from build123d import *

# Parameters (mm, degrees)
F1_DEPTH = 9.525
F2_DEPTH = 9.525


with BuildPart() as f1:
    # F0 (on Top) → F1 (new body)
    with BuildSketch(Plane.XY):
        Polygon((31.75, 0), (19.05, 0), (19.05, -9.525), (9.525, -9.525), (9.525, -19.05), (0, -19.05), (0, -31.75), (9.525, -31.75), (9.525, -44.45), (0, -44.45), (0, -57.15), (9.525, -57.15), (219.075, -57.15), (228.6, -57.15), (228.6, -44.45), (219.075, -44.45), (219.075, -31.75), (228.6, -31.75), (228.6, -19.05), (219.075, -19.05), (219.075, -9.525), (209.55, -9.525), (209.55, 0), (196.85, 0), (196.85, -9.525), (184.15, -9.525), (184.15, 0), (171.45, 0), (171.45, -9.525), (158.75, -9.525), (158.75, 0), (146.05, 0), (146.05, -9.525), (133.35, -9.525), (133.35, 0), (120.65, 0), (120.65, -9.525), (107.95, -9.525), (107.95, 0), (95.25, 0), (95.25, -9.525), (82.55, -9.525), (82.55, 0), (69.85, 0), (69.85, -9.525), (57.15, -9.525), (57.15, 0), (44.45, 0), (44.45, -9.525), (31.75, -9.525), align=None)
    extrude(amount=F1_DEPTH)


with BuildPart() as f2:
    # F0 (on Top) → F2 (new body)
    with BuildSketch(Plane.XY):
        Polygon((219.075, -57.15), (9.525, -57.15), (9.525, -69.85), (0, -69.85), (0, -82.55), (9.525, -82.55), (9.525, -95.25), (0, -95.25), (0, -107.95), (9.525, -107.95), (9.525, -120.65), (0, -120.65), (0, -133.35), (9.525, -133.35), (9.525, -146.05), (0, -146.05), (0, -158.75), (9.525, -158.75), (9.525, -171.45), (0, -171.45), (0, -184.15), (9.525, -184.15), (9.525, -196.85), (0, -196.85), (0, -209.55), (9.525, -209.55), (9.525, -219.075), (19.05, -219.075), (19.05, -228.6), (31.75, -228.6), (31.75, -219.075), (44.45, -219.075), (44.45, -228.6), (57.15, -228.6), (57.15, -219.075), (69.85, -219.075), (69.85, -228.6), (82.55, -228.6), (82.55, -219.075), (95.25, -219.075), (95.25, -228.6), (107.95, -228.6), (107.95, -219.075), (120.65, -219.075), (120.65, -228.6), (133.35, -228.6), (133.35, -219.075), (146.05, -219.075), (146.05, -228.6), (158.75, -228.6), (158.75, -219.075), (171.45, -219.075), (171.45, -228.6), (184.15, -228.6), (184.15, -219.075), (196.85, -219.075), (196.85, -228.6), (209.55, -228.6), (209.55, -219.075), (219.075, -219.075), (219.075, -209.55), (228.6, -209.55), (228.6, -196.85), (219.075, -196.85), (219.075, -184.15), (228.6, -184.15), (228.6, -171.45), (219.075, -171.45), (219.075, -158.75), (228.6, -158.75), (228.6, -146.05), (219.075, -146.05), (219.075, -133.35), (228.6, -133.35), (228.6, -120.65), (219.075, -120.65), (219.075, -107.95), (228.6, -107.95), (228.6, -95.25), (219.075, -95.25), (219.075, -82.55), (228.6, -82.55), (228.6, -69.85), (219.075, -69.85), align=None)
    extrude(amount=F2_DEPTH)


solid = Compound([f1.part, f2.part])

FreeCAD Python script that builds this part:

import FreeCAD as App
import Part
import Sketcher
from FreeCAD import Vector
Q = App.Units.Quantity

doc = App.newDocument("Part")
body = doc.addObject("PartDesign::Body", "Body")

# Sketch on XY plane
sketch1 = doc.addObject("Sketcher::SketchObject", "Sketch")
body.addObject(sketch1)
sketch1.AttachmentSupport = (doc.XY_Plane, [""])
sketch1.MapMode = "FlatFace"
sketch1.addGeometry([
    Part.LineSegment(Vector(32, 0, 0), Vector(19, 0, 0)),  # 0
    Part.LineSegment(Vector(19, 0, 0), Vector(19, -10, 0)),  # 1
    Part.LineSegment(Vector(19, -10, 0), Vector(10, -10, 0)),  # 2
    Part.LineSegment(Vector(10, -10, 0), Vector(10, -19, 0)),  # 3
    Part.LineSegment(Vector(10, -19, 0), Vector(0, -19, 0)),  # 4
    Part.LineSegment(Vector(0, -19, 0), Vector(0, -32, 0)),  # 5
    Part.LineSegment(Vector(0, -32, 0), Vector(10, -32, 0)),  # 6
    Part.LineSegment(Vector(10, -32, 0), Vector(10, -44, 0)),  # 7
    Part.LineSegment(Vector(10, -44, 0), Vector(0, -44, 0)),  # 8
    Part.LineSegment(Vector(0, -44, 0), Vector(0, -57, 0)),  # 9
    Part.LineSegment(Vector(0, -57, 0), Vector(229, -57, 0)),  # 10
    Part.LineSegment(Vector(229, -57, 0), Vector(229, -44, 0)),  # 11
    Part.LineSegment(Vector(229, -44, 0), Vector(219, -44, 0)),  # 12
    Part.LineSegment(Vector(219, -44, 0), Vector(219, -32, 0)),  # 13
    Part.LineSegment(Vector(219, -32, 0), Vector(229, -32, 0)),  # 14
    Part.LineSegment(Vector(229, -32, 0), Vector(229, -19, 0)),  # 15
    Part.LineSegment(Vector(229, -19, 0), Vector(219, -19, 0)),  # 16
    Part.LineSegment(Vector(219, -19, 0), Vector(219, -10, 0)),  # 17
    Part.LineSegment(Vector(219, -10, 0), Vector(210, -10, 0)),  # 18
    Part.LineSegment(Vector(210, -10, 0), Vector(210, 0, 0)),  # 19
    Part.LineSegment(Vector(210, 0, 0), Vector(197, 0, 0)),  # 20
    Part.LineSegment(Vector(197, 0, 0), Vector(197, -10, 0)),  # 21
    Part.LineSegment(Vector(197, -10, 0), Vector(184, -10, 0)),  # 22
    Part.LineSegment(Vector(184, -10, 0), Vector(184, 0, 0)),  # 23
    Part.LineSegment(Vector(184, 0, 0), Vector(171, 0, 0)),  # 24
    Part.LineSegment(Vector(171, 0, 0), Vector(171, -10, 0)),  # 25
    Part.LineSegment(Vector(171, -10, 0), Vector(159, -10, 0)),  # 26
    Part.LineSegment(Vector(159, -10, 0), Vector(159, 0, 0)),  # 27
    Part.LineSegment(Vector(159, 0, 0), Vector(146, 0, 0)),  # 28
    Part.LineSegment(Vector(146, 0, 0), Vector(146, -10, 0)),  # 29
    Part.LineSegment(Vector(146, -10, 0), Vector(133, -10, 0)),  # 30
    Part.LineSegment(Vector(133, -10, 0), Vector(133, 0, 0)),  # 31
    Part.LineSegment(Vector(133, 0, 0), Vector(121, 0, 0)),  # 32
    Part.LineSegment(Vector(121, 0, 0), Vector(121, -10, 0)),  # 33
    Part.LineSegment(Vector(121, -10, 0), Vector(108, -10, 0)),  # 34
    Part.LineSegment(Vector(108, -10, 0), Vector(108, 0, 0)),  # 35
    Part.LineSegment(Vector(108, 0, 0), Vector(95, 0, 0)),  # 36
    Part.LineSegment(Vector(95, 0, 0), Vector(95, -10, 0)),  # 37
    Part.LineSegment(Vector(95, -10, 0), Vector(83, -10, 0)),  # 38
    Part.LineSegment(Vector(83, -10, 0), Vector(83, 0, 0)),  # 39
    Part.LineSegment(Vector(83, 0, 0), Vector(70, 0, 0)),  # 40
    Part.LineSegment(Vector(70, 0, 0), Vector(70, -10, 0)),  # 41
    Part.LineSegment(Vector(70, -10, 0), Vector(57, -10, 0)),  # 42
    Part.LineSegment(Vector(57, -10, 0), Vector(57, 0, 0)),  # 43
    Part.LineSegment(Vector(57, 0, 0), Vector(44, 0, 0)),  # 44
    Part.LineSegment(Vector(44, 0, 0), Vector(44, -10, 0)),  # 45
    Part.LineSegment(Vector(44, -10, 0), Vector(32, -10, 0)),  # 46
    Part.LineSegment(Vector(32, -10, 0), Vector(32, 0, 0)),  # 47
], False)
sketch1.addConstraint([
    Sketcher.Constraint("Coincident", 0, 2, 1, 1),
    Sketcher.Constraint("Coincident", 1, 2, 2, 1),
    Sketcher.Constraint("Coincident", 2, 2, 3, 1),
    Sketcher.Constraint("Coincident", 3, 2, 4, 1),
    Sketcher.Constraint("Coincident", 4, 2, 5, 1),
    Sketcher.Constraint("Coincident", 5, 2, 6, 1),
    Sketcher.Constraint("Coincident", 6, 2, 7, 1),
    Sketcher.Constraint("Coincident", 7, 2, 8, 1),
    Sketcher.Constraint("Coincident", 8, 2, 9, 1),
    Sketcher.Constraint("Coincident", 9, 2, 10, 1),
    Sketcher.Constraint("Coincident", 10, 2, 11, 1),
    Sketcher.Constraint("Coincident", 11, 2, 12, 1),
    Sketcher.Constraint("Coincident", 12, 2, 13, 1),
    Sketcher.Constraint("Coincident", 13, 2, 14, 1),
    Sketcher.Constraint("Coincident", 14, 2, 15, 1),
    Sketcher.Constraint("Coincident", 15, 2, 16, 1),
    Sketcher.Constraint("Coincident", 16, 2, 17, 1),
    Sketcher.Constraint("Coincident", 17, 2, 18, 1),
    Sketcher.Constraint("Coincident", 18, 2, 19, 1),
    Sketcher.Constraint("Coincident", 19, 2, 20, 1),
    Sketcher.Constraint("Coincident", 20, 2, 21, 1),
    Sketcher.Constraint("Coincident", 21, 2, 22, 1),
    Sketcher.Constraint("Coincident", 22, 2, 23, 1),
    Sketcher.Constraint("Coincident", 23, 2, 24, 1),
    Sketcher.Constraint("Coincident", 24, 2, 25, 1),
    Sketcher.Constraint("Coincident", 25, 2, 26, 1),
    Sketcher.Constraint("Coincident", 26, 2, 27, 1),
    Sketcher.Constraint("Coincident", 27, 2, 28, 1),
    Sketcher.Constraint("Coincident", 28, 2, 29, 1),
    Sketcher.Constraint("Coincident", 29, 2, 30, 1),
    Sketcher.Constraint("Coincident", 30, 2, 31, 1),
    Sketcher.Constraint("Coincident", 31, 2, 32, 1),
    Sketcher.Constraint("Coincident", 32, 2, 33, 1),
    Sketcher.Constraint("Coincident", 33, 2, 34, 1),
    Sketcher.Constraint("Coincident", 34, 2, 35, 1),
    Sketcher.Constraint("Coincident", 35, 2, 36, 1),
    Sketcher.Constraint("Coincident", 36, 2, 37, 1),
    Sketcher.Constraint("Coincident", 37, 2, 38, 1),
    Sketcher.Constraint("Coincident", 38, 2, 39, 1),
    Sketcher.Constraint("Coincident", 39, 2, 40, 1),
    Sketcher.Constraint("Coincident", 40, 2, 41, 1),
    Sketcher.Constraint("Coincident", 41, 2, 42, 1),
    Sketcher.Constraint("Coincident", 42, 2, 43, 1),
    Sketcher.Constraint("Coincident", 43, 2, 44, 1),
    Sketcher.Constraint("Coincident", 44, 2, 45, 1),
    Sketcher.Constraint("Coincident", 45, 2, 46, 1),
    Sketcher.Constraint("Coincident", 46, 2, 47, 1),
    Sketcher.Constraint("Coincident", 47, 2, 0, 1),
    Sketcher.Constraint("Horizontal", 0),
    Sketcher.Constraint("Vertical", 1),
    Sketcher.Constraint("Horizontal", 2),
    Sketcher.Constraint("Vertical", 3),
    Sketcher.Constraint("Horizontal", 4),
    Sketcher.Constraint("Vertical", 5),
    Sketcher.Constraint("Horizontal", 6),
    Sketcher.Constraint("Vertical", 7),
    Sketcher.Constraint("Horizontal", 8),
    Sketcher.Constraint("Vertical", 9),
    Sketcher.Constraint("Horizontal", 10),
    Sketcher.Constraint("Vertical", 11),
    Sketcher.Constraint("Horizontal", 12),
    Sketcher.Constraint("Vertical", 13),
    Sketcher.Constraint("Horizontal", 14),
    Sketcher.Constraint("Vertical", 15),
    Sketcher.Constraint("Horizontal", 16),
    Sketcher.Constraint("Vertical", 17),
    Sketcher.Constraint("Horizontal", 18),
    Sketcher.Constraint("Vertical", 19),
    Sketcher.Constraint("Horizontal", 20),
    Sketcher.Constraint("Vertical", 21),
    Sketcher.Constraint("Horizontal", 22),
    Sketcher.Constraint("Vertical", 23),
    Sketcher.Constraint("Horizontal", 24),
    Sketcher.Constraint("Vertical", 25),
    Sketcher.Constraint("Horizontal", 26),
    Sketcher.Constraint("Vertical", 27),
    Sketcher.Constraint("Horizontal", 28),
    Sketcher.Constraint("Vertical", 29),
    Sketcher.Constraint("Horizontal", 30),
    Sketcher.Constraint("Vertical", 31),
    Sketcher.Constraint("Horizontal", 32),
    Sketcher.Constraint("Vertical", 33),
    Sketcher.Constraint("Horizontal", 34),
    Sketcher.Constraint("Vertical", 35),
    Sketcher.Constraint("Horizontal", 36),
    Sketcher.Constraint("Vertical", 37),
    Sketcher.Constraint("Horizontal", 38),
    Sketcher.Constraint("Vertical", 39),
    Sketcher.Constraint("Horizontal", 40),
    Sketcher.Constraint("Vertical", 41),
    Sketcher.Constraint("Horizontal", 42),
    Sketcher.Constraint("Vertical", 43),
    Sketcher.Constraint("Horizontal", 44),
    Sketcher.Constraint("Vertical", 45),
    Sketcher.Constraint("Horizontal", 46),
    Sketcher.Constraint("Vertical", 47),
    Sketcher.Constraint("PointOnObject", 0, 2, -1),
    Sketcher.Constraint("PointOnObject", 4, 2, -2),
    Sketcher.Constraint("PointOnObject", 8, 2, -2),
    Sketcher.Constraint("PointOnObject", 19, 2, -1),
    Sketcher.Constraint("PointOnObject", 23, 2, -1),
    Sketcher.Constraint("PointOnObject", 27, 2, -1),
    Sketcher.Constraint("PointOnObject", 31, 2, -1),
    Sketcher.Constraint("PointOnObject", 35, 2, -1),
    Sketcher.Constraint("PointOnObject", 39, 2, -1),
    Sketcher.Constraint("PointOnObject", 43, 2, -1),
    Sketcher.Constraint("Horizontal", 8, 2, 11, 2),
    Sketcher.Constraint("Horizontal", 6, 2, 13, 2),
    Sketcher.Constraint("Horizontal", 4, 2, 15, 2),
    Sketcher.Constraint("Horizontal", 2, 2, 17, 2),
    Sketcher.Constraint("Horizontal", 18, 2, 21, 2),
    Sketcher.Constraint("Horizontal", 22, 2, 25, 2),
    Sketcher.Constraint("Horizontal", 26, 2, 29, 2),
    Sketcher.Constraint("Horizontal", 30, 2, 33, 2),
    Sketcher.Constraint("Horizontal", 34, 2, 37, 2),
    Sketcher.Constraint("Horizontal", 38, 2, 41, 2),
    Sketcher.Constraint("Horizontal", 42, 2, 45, 2),
    Sketcher.Constraint("Vertical", 3, 2, 6, 2),
    Sketcher.Constraint("Vertical", 11, 2, 14, 2),
    Sketcher.Constraint("Vertical", 13, 2, 16, 2),
    Sketcher.Constraint("Equal", 2, 4),
    Sketcher.Constraint("Equal", 8, 12),
    Sketcher.Constraint("Equal", 16, 18),
    Sketcher.Constraint("Equal", 0, 20),
    Sketcher.Constraint("Equal", 20, 22),
    Sketcher.Constraint("Equal", 22, 24),
    Sketcher.Constraint("Equal", 24, 26),
    Sketcher.Constraint("Equal", 26, 28),
    Sketcher.Constraint("Equal", 28, 30),
    Sketcher.Constraint("Equal", 30, 32),
    Sketcher.Constraint("Equal", 32, 34),
    Sketcher.Constraint("Equal", 34, 36),
    Sketcher.Constraint("Equal", 36, 38),
    Sketcher.Constraint("Equal", 38, 40),
    Sketcher.Constraint("Equal", 40, 42),
    Sketcher.Constraint("Equal", 42, 44),
    Sketcher.Constraint("Equal", 44, 46),
    Sketcher.Constraint("Equal", 18, 1),
    Sketcher.Constraint("Equal", 1, 3),
    Sketcher.Constraint("Equal", 46, 5),
    Sketcher.Constraint("Equal", 5, 7),
    Sketcher.Constraint("Equal", 7, 9),
    Sketcher.Constraint("DistanceX", 10, 1, 10, 2, Q("9 in")),
    Sketcher.Constraint("DistanceX", 0, 2, 0, 1, Q("0.5 in")),
])
pad1 = doc.addObject("PartDesign::Pad", "Pad")
body.addObject(pad1)
pad1.Profile = sketch1
pad1.Length = Q("0.375 in")
body2 = doc.addObject("PartDesign::Body", "Body001")

# Sketch on XY plane
sketch2 = doc.addObject("Sketcher::SketchObject", "Sketch001")
body2.addObject(sketch2)
sketch2.AttachmentSupport = (doc.getObject("XY_Plane001"), [""])
sketch2.MapMode = "FlatFace"
sketch2.addGeometry([
    Part.LineSegment(Vector(219, -57, 0), Vector(10, -57, 0)),  # 0
    Part.LineSegment(Vector(10, -57, 0), Vector(10, -70, 0)),  # 1
    Part.LineSegment(Vector(10, -70, 0), Vector(0, -70, 0)),  # 2
    Part.LineSegment(Vector(0, -70, 0), Vector(0, -83, 0)),  # 3
    Part.LineSegment(Vector(0, -83, 0), Vector(10, -83, 0)),  # 4
    Part.LineSegment(Vector(10, -83, 0), Vector(10, -95, 0)),  # 5
    Part.LineSegment(Vector(10, -95, 0), Vector(0, -95, 0)),  # 6
    Part.LineSegment(Vector(0, -95, 0), Vector(0, -108, 0)),  # 7
    Part.LineSegment(Vector(0, -108, 0), Vector(10, -108, 0)),  # 8
    Part.LineSegment(Vector(10, -108, 0), Vector(10, -121, 0)),  # 9
    Part.LineSegment(Vector(10, -121, 0), Vector(0, -121, 0)),  # 10
    Part.LineSegment(Vector(0, -121, 0), Vector(0, -133, 0)),  # 11
    Part.LineSegment(Vector(0, -133, 0), Vector(10, -133, 0)),  # 12
    Part.LineSegment(Vector(10, -133, 0), Vector(10, -146, 0)),  # 13
    Part.LineSegment(Vector(10, -146, 0), Vector(0, -146, 0)),  # 14
    Part.LineSegment(Vector(0, -146, 0), Vector(0, -159, 0)),  # 15
    Part.LineSegment(Vector(0, -159, 0), Vector(10, -159, 0)),  # 16
    Part.LineSegment(Vector(10, -159, 0), Vector(10, -171, 0)),  # 17
    Part.LineSegment(Vector(10, -171, 0), Vector(0, -171, 0)),  # 18
    Part.LineSegment(Vector(0, -171, 0), Vector(0, -184, 0)),  # 19
    Part.LineSegment(Vector(0, -184, 0), Vector(10, -184, 0)),  # 20
    Part.LineSegment(Vector(10, -184, 0), Vector(10, -197, 0)),  # 21
    Part.LineSegment(Vector(10, -197, 0), Vector(0, -197, 0)),  # 22
    Part.LineSegment(Vector(0, -197, 0), Vector(0, -210, 0)),  # 23
    Part.LineSegment(Vector(0, -210, 0), Vector(10, -210, 0)),  # 24
    Part.LineSegment(Vector(10, -210, 0), Vector(10, -219, 0)),  # 25
    Part.LineSegment(Vector(10, -219, 0), Vector(19, -219, 0)),  # 26
    Part.LineSegment(Vector(19, -219, 0), Vector(19, -229, 0)),  # 27
    Part.LineSegment(Vector(19, -229, 0), Vector(32, -229, 0)),  # 28
    Part.LineSegment(Vector(32, -229, 0), Vector(32, -219, 0)),  # 29
    Part.LineSegment(Vector(32, -219, 0), Vector(44, -219, 0)),  # 30
    Part.LineSegment(Vector(44, -219, 0), Vector(44, -229, 0)),  # 31
    Part.LineSegment(Vector(44, -229, 0), Vector(57, -229, 0)),  # 32
    Part.LineSegment(Vector(57, -229, 0), Vector(57, -219, 0)),  # 33
    Part.LineSegment(Vector(57, -219, 0), Vector(70, -219, 0)),  # 34
    Part.LineSegment(Vector(70, -219, 0), Vector(70, -229, 0)),  # 35
    Part.LineSegment(Vector(70, -229, 0), Vector(83, -229, 0)),  # 36
    Part.LineSegment(Vector(83, -229, 0), Vector(83, -219, 0)),  # 37
    Part.LineSegment(Vector(83, -219, 0), Vector(95, -219, 0)),  # 38
    Part.LineSegment(Vector(95, -219, 0), Vector(95, -229, 0)),  # 39
    Part.LineSegment(Vector(95, -229, 0), Vector(108, -229, 0)),  # 40
    Part.LineSegment(Vector(108, -229, 0), Vector(108, -219, 0)),  # 41
    Part.LineSegment(Vector(108, -219, 0), Vector(121, -219, 0)),  # 42
    Part.LineSegment(Vector(121, -219, 0), Vector(121, -229, 0)),  # 43
    Part.LineSegment(Vector(121, -229, 0), Vector(133, -229, 0)),  # 44
    Part.LineSegment(Vector(133, -229, 0), Vector(133, -219, 0)),  # 45
    Part.LineSegment(Vector(133, -219, 0), Vector(146, -219, 0)),  # 46
    Part.LineSegment(Vector(146, -219, 0), Vector(146, -229, 0)),  # 47
    Part.LineSegment(Vector(146, -229, 0), Vector(159, -229, 0)),  # 48
    Part.LineSegment(Vector(159, -229, 0), Vector(159, -219, 0)),  # 49
    Part.LineSegment(Vector(159, -219, 0), Vector(171, -219, 0)),  # 50
    Part.LineSegment(Vector(171, -219, 0), Vector(171, -229, 0)),  # 51
    Part.LineSegment(Vector(171, -229, 0), Vector(184, -229, 0)),  # 52
    Part.LineSegment(Vector(184, -229, 0), Vector(184, -219, 0)),  # 53
    Part.LineSegment(Vector(184, -219, 0), Vector(197, -219, 0)),  # 54
    Part.LineSegment(Vector(197, -219, 0), Vector(197, -229, 0)),  # 55
    Part.LineSegment(Vector(197, -229, 0), Vector(210, -229, 0)),  # 56
    Part.LineSegment(Vector(210, -229, 0), Vector(210, -219, 0)),  # 57
    Part.LineSegment(Vector(210, -219, 0), Vector(219, -219, 0)),  # 58
    Part.LineSegment(Vector(219, -219, 0), Vector(219, -210, 0)),  # 59
    Part.LineSegment(Vector(219, -210, 0), Vector(229, -210, 0)),  # 60
    Part.LineSegment(Vector(229, -210, 0), Vector(229, -197, 0)),  # 61
    Part.LineSegment(Vector(229, -197, 0), Vector(219, -197, 0)),  # 62
    Part.LineSegment(Vector(219, -197, 0), Vector(219, -184, 0)),  # 63
    Part.LineSegment(Vector(219, -184, 0), Vector(229, -184, 0)),  # 64
    Part.LineSegment(Vector(229, -184, 0), Vector(229, -171, 0)),  # 65
    Part.LineSegment(Vector(229, -171, 0), Vector(219, -171, 0)),  # 66
    Part.LineSegment(Vector(219, -171, 0), Vector(219, -159, 0)),  # 67
    Part.LineSegment(Vector(219, -159, 0), Vector(229, -159, 0)),  # 68
    Part.LineSegment(Vector(229, -159, 0), Vector(229, -146, 0)),  # 69
    Part.LineSegment(Vector(229, -146, 0), Vector(219, -146, 0)),  # 70
    Part.LineSegment(Vector(219, -146, 0), Vector(219, -133, 0)),  # 71
    Part.LineSegment(Vector(219, -133, 0), Vector(229, -133, 0)),  # 72
    Part.LineSegment(Vector(229, -133, 0), Vector(229, -121, 0)),  # 73
    Part.LineSegment(Vector(229, -121, 0), Vector(219, -121, 0)),  # 74
    Part.LineSegment(Vector(219, -121, 0), Vector(219, -108, 0)),  # 75
    Part.LineSegment(Vector(219, -108, 0), Vector(229, -108, 0)),  # 76
    Part.LineSegment(Vector(229, -108, 0), Vector(229, -95, 0)),  # 77
    Part.LineSegment(Vector(229, -95, 0), Vector(219, -95, 0)),  # 78
    Part.LineSegment(Vector(219, -95, 0), Vector(219, -83, 0)),  # 79
    Part.LineSegment(Vector(219, -83, 0), Vector(229, -83, 0)),  # 80
    Part.LineSegment(Vector(229, -83, 0), Vector(229, -70, 0)),  # 81
    Part.LineSegment(Vector(229, -70, 0), Vector(219, -70, 0)),  # 82
    Part.LineSegment(Vector(219, -70, 0), Vector(219, -57, 0)),  # 83
], False)
sketch2.addConstraint([
    Sketcher.Constraint("Coincident", 0, 2, 1, 1),
    Sketcher.Constraint("Coincident", 1, 2, 2, 1),
    Sketcher.Constraint("Coincident", 2, 2, 3, 1),
    Sketcher.Constraint("Coincident", 3, 2, 4, 1),
    Sketcher.Constraint("Coincident", 4, 2, 5, 1),
    Sketcher.Constraint("Coincident", 5, 2, 6, 1),
    Sketcher.Constraint("Coincident", 6, 2, 7, 1),
    Sketcher.Constraint("Coincident", 7, 2, 8, 1),
    Sketcher.Constraint("Coincident", 8, 2, 9, 1),
    Sketcher.Constraint("Coincident", 9, 2, 10, 1),
    Sketcher.Constraint("Coincident", 10, 2, 11, 1),
    Sketcher.Constraint("Coincident", 11, 2, 12, 1),
    Sketcher.Constraint("Coincident", 12, 2, 13, 1),
    Sketcher.Constraint("Coincident", 13, 2, 14, 1),
    Sketcher.Constraint("Coincident", 14, 2, 15, 1),
    Sketcher.Constraint("Coincident", 15, 2, 16, 1),
    Sketcher.Constraint("Coincident", 16, 2, 17, 1),
    Sketcher.Constraint("Coincident", 17, 2, 18, 1),
    Sketcher.Constraint("Coincident", 18, 2, 19, 1),
    Sketcher.Constraint("Coincident", 19, 2, 20, 1),
    Sketcher.Constraint("Coincident", 20, 2, 21, 1),
    Sketcher.Constraint("Coincident", 21, 2, 22, 1),
    Sketcher.Constraint("Coincident", 22, 2, 23, 1),
    Sketcher.Constraint("Coincident", 23, 2, 24, 1),
    Sketcher.Constraint("Coincident", 24, 2, 25, 1),
    Sketcher.Constraint("Coincident", 25, 2, 26, 1),
    Sketcher.Constraint("Coincident", 26, 2, 27, 1),
    Sketcher.Constraint("Coincident", 27, 2, 28, 1),
    Sketcher.Constraint("Coincident", 28, 2, 29, 1),
    Sketcher.Constraint("Coincident", 29, 2, 30, 1),
    Sketcher.Constraint("Coincident", 30, 2, 31, 1),
    Sketcher.Constraint("Coincident", 31, 2, 32, 1),
    Sketcher.Constraint("Coincident", 32, 2, 33, 1),
    Sketcher.Constraint("Coincident", 33, 2, 34, 1),
    Sketcher.Constraint("Coincident", 34, 2, 35, 1),
    Sketcher.Constraint("Coincident", 35, 2, 36, 1),
    Sketcher.Constraint("Coincident", 36, 2, 37, 1),
    Sketcher.Constraint("Coincident", 37, 2, 38, 1),
    Sketcher.Constraint("Coincident", 38, 2, 39, 1),
    Sketcher.Constraint("Coincident", 39, 2, 40, 1),
    Sketcher.Constraint("Coincident", 40, 2, 41, 1),
    Sketcher.Constraint("Coincident", 41, 2, 42, 1),
    Sketcher.Constraint("Coincident", 42, 2, 43, 1),
    Sketcher.Constraint("Coincident", 43, 2, 44, 1),
    Sketcher.Constraint("Coincident", 44, 2, 45, 1),
    Sketcher.Constraint("Coincident", 45, 2, 46, 1),
    Sketcher.Constraint("Coincident", 46, 2, 47, 1),
    Sketcher.Constraint("Coincident", 47, 2, 48, 1),
    Sketcher.Constraint("Coincident", 48, 2, 49, 1),
    Sketcher.Constraint("Coincident", 49, 2, 50, 1),
    Sketcher.Constraint("Coincident", 50, 2, 51, 1),
    Sketcher.Constraint("Coincident", 51, 2, 52, 1),
    Sketcher.Constraint("Coincident", 52, 2, 53, 1),
    Sketcher.Constraint("Coincident", 53, 2, 54, 1),
    Sketcher.Constraint("Coincident", 54, 2, 55, 1),
    Sketcher.Constraint("Coincident", 55, 2, 56, 1),
    Sketcher.Constraint("Coincident", 56, 2, 57, 1),
    Sketcher.Constraint("Coincident", 57, 2, 58, 1),
    Sketcher.Constraint("Coincident", 58, 2, 59, 1),
    Sketcher.Constraint("Coincident", 59, 2, 60, 1),
    Sketcher.Constraint("Coincident", 60, 2, 61, 1),
    Sketcher.Constraint("Coincident", 61, 2, 62, 1),
    Sketcher.Constraint("Coincident", 62, 2, 63, 1),
    Sketcher.Constraint("Coincident", 63, 2, 64, 1),
    Sketcher.Constraint("Coincident", 64, 2, 65, 1),
    Sketcher.Constraint("Coincident", 65, 2, 66, 1),
    Sketcher.Constraint("Coincident", 66, 2, 67, 1),
    Sketcher.Constraint("Coincident", 67, 2, 68, 1),
    Sketcher.Constraint("Coincident", 68, 2, 69, 1),
    Sketcher.Constraint("Coincident", 69, 2, 70, 1),
    Sketcher.Constraint("Coincident", 70, 2, 71, 1),
    Sketcher.Constraint("Coincident", 71, 2, 72, 1),
    Sketcher.Constraint("Coincident", 72, 2, 73, 1),
    Sketcher.Constraint("Coincident", 73, 2, 74, 1),
    Sketcher.Constraint("Coincident", 74, 2, 75, 1),
    Sketcher.Constraint("Coincident", 75, 2, 76, 1),
    Sketcher.Constraint("Coincident", 76, 2, 77, 1),
    Sketcher.Constraint("Coincident", 77, 2, 78, 1),
    Sketcher.Constraint("Coincident", 78, 2, 79, 1),
    Sketcher.Constraint("Coincident", 79, 2, 80, 1),
    Sketcher.Constraint("Coincident", 80, 2, 81, 1),
    Sketcher.Constraint("Coincident", 81, 2, 82, 1),
    Sketcher.Constraint("Coincident", 82, 2, 83, 1),
    Sketcher.Constraint("Coincident", 83, 2, 0, 1),
    Sketcher.Constraint("Horizontal", 0),
    Sketcher.Constraint("Vertical", 1),
    Sketcher.Constraint("Horizontal", 2),
    Sketcher.Constraint("Vertical", 3),
    Sketcher.Constraint("Horizontal", 4),
    Sketcher.Constraint("Vertical", 5),
    Sketcher.Constraint("Horizontal", 6),
    Sketcher.Constraint("Vertical", 7),
    Sketcher.Constraint("Horizontal", 8),
    Sketcher.Constraint("Vertical", 9),
    Sketcher.Constraint("Horizontal", 10),
    Sketcher.Constraint("Vertical", 11),
    Sketcher.Constraint("Horizontal", 12),
    Sketcher.Constraint("Vertical", 13),
    Sketcher.Constraint("Horizontal", 14),
    Sketcher.Constraint("Vertical", 15),
    Sketcher.Constraint("Horizontal", 16),
    Sketcher.Constraint("Vertical", 17),
    Sketcher.Constraint("Horizontal", 18),
    Sketcher.Constraint("Vertical", 19),
    Sketcher.Constraint("Horizontal", 20),
    Sketcher.Constraint("Vertical", 21),
    Sketcher.Constraint("Horizontal", 22),
    Sketcher.Constraint("Vertical", 23),
    Sketcher.Constraint("Horizontal", 24),
    Sketcher.Constraint("Vertical", 25),
    Sketcher.Constraint("Horizontal", 26),
    Sketcher.Constraint("Vertical", 27),
    Sketcher.Constraint("Horizontal", 28),
    Sketcher.Constraint("Vertical", 29),
    Sketcher.Constraint("Horizontal", 30),
    Sketcher.Constraint("Vertical", 31),
    Sketcher.Constraint("Horizontal", 32),
    Sketcher.Constraint("Vertical", 33),
    Sketcher.Constraint("Horizontal", 34),
    Sketcher.Constraint("Vertical", 35),
    Sketcher.Constraint("Horizontal", 36),
    Sketcher.Constraint("Vertical", 37),
    Sketcher.Constraint("Horizontal", 38),
    Sketcher.Constraint("Vertical", 39),
    Sketcher.Constraint("Horizontal", 40),
    Sketcher.Constraint("Vertical", 41),
    Sketcher.Constraint("Horizontal", 42),
    Sketcher.Constraint("Vertical", 43),
    Sketcher.Constraint("Horizontal", 44),
    Sketcher.Constraint("Vertical", 45),
    Sketcher.Constraint("Horizontal", 46),
    Sketcher.Constraint("Vertical", 47),
    Sketcher.Constraint("Horizontal", 48),
    Sketcher.Constraint("Vertical", 49),
    Sketcher.Constraint("Horizontal", 50),
    Sketcher.Constraint("Vertical", 51),
    Sketcher.Constraint("Horizontal", 52),
    Sketcher.Constraint("Vertical", 53),
    Sketcher.Constraint("Horizontal", 54),
    Sketcher.Constraint("Vertical", 55),
    Sketcher.Constraint("Horizontal", 56),
    Sketcher.Constraint("Vertical", 57),
    Sketcher.Constraint("Horizontal", 58),
    Sketcher.Constraint("Vertical", 59),
    Sketcher.Constraint("Horizontal", 60),
    Sketcher.Constraint("Vertical", 61),
    Sketcher.Constraint("Horizontal", 62),
    Sketcher.Constraint("Vertical", 63),
    Sketcher.Constraint("Horizontal", 64),
    Sketcher.Constraint("Vertical", 65),
    Sketcher.Constraint("Horizontal", 66),
    Sketcher.Constraint("Vertical", 67),
    Sketcher.Constraint("Horizontal", 68),
    Sketcher.Constraint("Vertical", 69),
    Sketcher.Constraint("Horizontal", 70),
    Sketcher.Constraint("Vertical", 71),
    Sketcher.Constraint("Horizontal", 72),
    Sketcher.Constraint("Vertical", 73),
    Sketcher.Constraint("Horizontal", 74),
    Sketcher.Constraint("Vertical", 75),
    Sketcher.Constraint("Horizontal", 76),
    Sketcher.Constraint("Vertical", 77),
    Sketcher.Constraint("Horizontal", 78),
    Sketcher.Constraint("Vertical", 79),
    Sketcher.Constraint("Horizontal", 80),
    Sketcher.Constraint("Vertical", 81),
    Sketcher.Constraint("Horizontal", 82),
    Sketcher.Constraint("Vertical", 83),
    Sketcher.Constraint("PointOnObject", 2, 2, -2),
    Sketcher.Constraint("PointOnObject", 6, 2, -2),
    Sketcher.Constraint("PointOnObject", 10, 2, -2),
    Sketcher.Constraint("PointOnObject", 14, 2, -2),
    Sketcher.Constraint("PointOnObject", 18, 2, -2),
    Sketcher.Constraint("PointOnObject", 22, 2, -2),
    Sketcher.Constraint("Horizontal", 26, 2, 29, 2),
    Sketcher.Constraint("Horizontal", 28, 2, 31, 2),
    Sketcher.Constraint("Horizontal", 30, 2, 33, 2),
    Sketcher.Constraint("Horizontal", 32, 2, 35, 2),
    Sketcher.Constraint("Horizontal", 34, 2, 37, 2),
    Sketcher.Constraint("Horizontal", 36, 2, 39, 2),
    Sketcher.Constraint("Horizontal", 38, 2, 41, 2),
    Sketcher.Constraint("Horizontal", 40, 2, 43, 2),
    Sketcher.Constraint("Horizontal", 42, 2, 45, 2),
    Sketcher.Constraint("Horizontal", 44, 2, 47, 2),
    Sketcher.Constraint("Horizontal", 46, 2, 49, 2),
    Sketcher.Constraint("Horizontal", 48, 2, 51, 2),
    Sketcher.Constraint("Horizontal", 50, 2, 53, 2),
    Sketcher.Constraint("Horizontal", 52, 2, 55, 2),
    Sketcher.Constraint("Horizontal", 54, 2, 57, 2),
    Sketcher.Constraint("Horizontal", 24, 2, 59, 2),
    Sketcher.Constraint("Horizontal", 22, 2, 61, 2),
    Sketcher.Constraint("Horizontal", 20, 2, 63, 2),
    Sketcher.Constraint("Horizontal", 18, 2, 65, 2),
    Sketcher.Constraint("Horizontal", 16, 2, 67, 2),
    Sketcher.Constraint("Horizontal", 14, 2, 69, 2),
    Sketcher.Constraint("Horizontal", 12, 2, 71, 2),
    Sketcher.Constraint("Horizontal", 10, 2, 73, 2),
    Sketcher.Constraint("Horizontal", 8, 2, 75, 2),
    Sketcher.Constraint("Horizontal", 6, 2, 77, 2),
    Sketcher.Constraint("Horizontal", 4, 2, 79, 2),
    Sketcher.Constraint("Horizontal", 2, 2, 81, 2),
    Sketcher.Constraint("Vertical", 1, 2, 4, 2),
    Sketcher.Constraint("Vertical", 5, 2, 8, 2),
    Sketcher.Constraint("Vertical", 9, 2, 12, 2),
    Sketcher.Constraint("Vertical", 13, 2, 16, 2),
    Sketcher.Constraint("Vertical", 17, 2, 20, 2),
    Sketcher.Constraint("Vertical", 21, 2, 24, 2),
    Sketcher.Constraint("Vertical", 59, 2, 62, 2),
    Sketcher.Constraint("Vertical", 61, 2, 64, 2),
    Sketcher.Constraint("Vertical", 63, 2, 66, 2),
    Sketcher.Constraint("Vertical", 65, 2, 68, 2),
    Sketcher.Constraint("Vertical", 67, 2, 70, 2),
    Sketcher.Constraint("Vertical", 69, 2, 72, 2),
    Sketcher.Constraint("Vertical", 71, 2, 74, 2),
    Sketcher.Constraint("Vertical", 73, 2, 76, 2),
    Sketcher.Constraint("Vertical", 75, 2, 78, 2),
    Sketcher.Constraint("Vertical", 77, 2, 80, 2),
    Sketcher.Constraint("Vertical", 79, 2, 82, 2),
    Sketcher.Constraint("Equal", 24, 26),
    Sketcher.Constraint("Equal", 28, 30),
    Sketcher.Constraint("Equal", 30, 32),
    Sketcher.Constraint("Equal", 32, 34),
    Sketcher.Constraint("Equal", 34, 36),
    Sketcher.Constraint("Equal", 36, 38),
    Sketcher.Constraint("Equal", 38, 40),
    Sketcher.Constraint("Equal", 40, 42),
    Sketcher.Constraint("Equal", 42, 44),
    Sketcher.Constraint("Equal", 44, 46),
    Sketcher.Constraint("Equal", 46, 48),
    Sketcher.Constraint("Equal", 48, 50),
    Sketcher.Constraint("Equal", 50, 52),
    Sketcher.Constraint("Equal", 52, 54),
    Sketcher.Constraint("Equal", 54, 56),
    Sketcher.Constraint("Equal", 26, 58),
    Sketcher.Constraint("Equal", 58, 60),
    Sketcher.Constraint("Equal", 56, 1),
    Sketcher.Constraint("Equal", 1, 3),
    Sketcher.Constraint("Equal", 3, 5),
    Sketcher.Constraint("Equal", 5, 7),
    Sketcher.Constraint("Equal", 7, 9),
    Sketcher.Constraint("Equal", 9, 11),
    Sketcher.Constraint("Equal", 11, 13),
    Sketcher.Constraint("Equal", 13, 15),
    Sketcher.Constraint("Equal", 15, 17),
    Sketcher.Constraint("Equal", 17, 19),
    Sketcher.Constraint("Equal", 19, 21),
    Sketcher.Constraint("Equal", 21, 23),
    Sketcher.Constraint("Equal", 82, 25),
    Sketcher.Constraint("Equal", 25, 27),
    Sketcher.Constraint("DistanceX", 28, 1, 28, 2, Q("0.5 in")),
    Sketcher.Constraint("DistanceY", 27, 2, -1, 1, Q("9 in")),
    Sketcher.Constraint("DistanceX", -1, 1, 60, 2, Q("9 in")),
])
pad2 = doc.addObject("PartDesign::Pad", "Pad001")
body2.addObject(pad2)
pad2.Profile = sketch2
pad2.Length = Q("0.375 in")

doc.recompute()
